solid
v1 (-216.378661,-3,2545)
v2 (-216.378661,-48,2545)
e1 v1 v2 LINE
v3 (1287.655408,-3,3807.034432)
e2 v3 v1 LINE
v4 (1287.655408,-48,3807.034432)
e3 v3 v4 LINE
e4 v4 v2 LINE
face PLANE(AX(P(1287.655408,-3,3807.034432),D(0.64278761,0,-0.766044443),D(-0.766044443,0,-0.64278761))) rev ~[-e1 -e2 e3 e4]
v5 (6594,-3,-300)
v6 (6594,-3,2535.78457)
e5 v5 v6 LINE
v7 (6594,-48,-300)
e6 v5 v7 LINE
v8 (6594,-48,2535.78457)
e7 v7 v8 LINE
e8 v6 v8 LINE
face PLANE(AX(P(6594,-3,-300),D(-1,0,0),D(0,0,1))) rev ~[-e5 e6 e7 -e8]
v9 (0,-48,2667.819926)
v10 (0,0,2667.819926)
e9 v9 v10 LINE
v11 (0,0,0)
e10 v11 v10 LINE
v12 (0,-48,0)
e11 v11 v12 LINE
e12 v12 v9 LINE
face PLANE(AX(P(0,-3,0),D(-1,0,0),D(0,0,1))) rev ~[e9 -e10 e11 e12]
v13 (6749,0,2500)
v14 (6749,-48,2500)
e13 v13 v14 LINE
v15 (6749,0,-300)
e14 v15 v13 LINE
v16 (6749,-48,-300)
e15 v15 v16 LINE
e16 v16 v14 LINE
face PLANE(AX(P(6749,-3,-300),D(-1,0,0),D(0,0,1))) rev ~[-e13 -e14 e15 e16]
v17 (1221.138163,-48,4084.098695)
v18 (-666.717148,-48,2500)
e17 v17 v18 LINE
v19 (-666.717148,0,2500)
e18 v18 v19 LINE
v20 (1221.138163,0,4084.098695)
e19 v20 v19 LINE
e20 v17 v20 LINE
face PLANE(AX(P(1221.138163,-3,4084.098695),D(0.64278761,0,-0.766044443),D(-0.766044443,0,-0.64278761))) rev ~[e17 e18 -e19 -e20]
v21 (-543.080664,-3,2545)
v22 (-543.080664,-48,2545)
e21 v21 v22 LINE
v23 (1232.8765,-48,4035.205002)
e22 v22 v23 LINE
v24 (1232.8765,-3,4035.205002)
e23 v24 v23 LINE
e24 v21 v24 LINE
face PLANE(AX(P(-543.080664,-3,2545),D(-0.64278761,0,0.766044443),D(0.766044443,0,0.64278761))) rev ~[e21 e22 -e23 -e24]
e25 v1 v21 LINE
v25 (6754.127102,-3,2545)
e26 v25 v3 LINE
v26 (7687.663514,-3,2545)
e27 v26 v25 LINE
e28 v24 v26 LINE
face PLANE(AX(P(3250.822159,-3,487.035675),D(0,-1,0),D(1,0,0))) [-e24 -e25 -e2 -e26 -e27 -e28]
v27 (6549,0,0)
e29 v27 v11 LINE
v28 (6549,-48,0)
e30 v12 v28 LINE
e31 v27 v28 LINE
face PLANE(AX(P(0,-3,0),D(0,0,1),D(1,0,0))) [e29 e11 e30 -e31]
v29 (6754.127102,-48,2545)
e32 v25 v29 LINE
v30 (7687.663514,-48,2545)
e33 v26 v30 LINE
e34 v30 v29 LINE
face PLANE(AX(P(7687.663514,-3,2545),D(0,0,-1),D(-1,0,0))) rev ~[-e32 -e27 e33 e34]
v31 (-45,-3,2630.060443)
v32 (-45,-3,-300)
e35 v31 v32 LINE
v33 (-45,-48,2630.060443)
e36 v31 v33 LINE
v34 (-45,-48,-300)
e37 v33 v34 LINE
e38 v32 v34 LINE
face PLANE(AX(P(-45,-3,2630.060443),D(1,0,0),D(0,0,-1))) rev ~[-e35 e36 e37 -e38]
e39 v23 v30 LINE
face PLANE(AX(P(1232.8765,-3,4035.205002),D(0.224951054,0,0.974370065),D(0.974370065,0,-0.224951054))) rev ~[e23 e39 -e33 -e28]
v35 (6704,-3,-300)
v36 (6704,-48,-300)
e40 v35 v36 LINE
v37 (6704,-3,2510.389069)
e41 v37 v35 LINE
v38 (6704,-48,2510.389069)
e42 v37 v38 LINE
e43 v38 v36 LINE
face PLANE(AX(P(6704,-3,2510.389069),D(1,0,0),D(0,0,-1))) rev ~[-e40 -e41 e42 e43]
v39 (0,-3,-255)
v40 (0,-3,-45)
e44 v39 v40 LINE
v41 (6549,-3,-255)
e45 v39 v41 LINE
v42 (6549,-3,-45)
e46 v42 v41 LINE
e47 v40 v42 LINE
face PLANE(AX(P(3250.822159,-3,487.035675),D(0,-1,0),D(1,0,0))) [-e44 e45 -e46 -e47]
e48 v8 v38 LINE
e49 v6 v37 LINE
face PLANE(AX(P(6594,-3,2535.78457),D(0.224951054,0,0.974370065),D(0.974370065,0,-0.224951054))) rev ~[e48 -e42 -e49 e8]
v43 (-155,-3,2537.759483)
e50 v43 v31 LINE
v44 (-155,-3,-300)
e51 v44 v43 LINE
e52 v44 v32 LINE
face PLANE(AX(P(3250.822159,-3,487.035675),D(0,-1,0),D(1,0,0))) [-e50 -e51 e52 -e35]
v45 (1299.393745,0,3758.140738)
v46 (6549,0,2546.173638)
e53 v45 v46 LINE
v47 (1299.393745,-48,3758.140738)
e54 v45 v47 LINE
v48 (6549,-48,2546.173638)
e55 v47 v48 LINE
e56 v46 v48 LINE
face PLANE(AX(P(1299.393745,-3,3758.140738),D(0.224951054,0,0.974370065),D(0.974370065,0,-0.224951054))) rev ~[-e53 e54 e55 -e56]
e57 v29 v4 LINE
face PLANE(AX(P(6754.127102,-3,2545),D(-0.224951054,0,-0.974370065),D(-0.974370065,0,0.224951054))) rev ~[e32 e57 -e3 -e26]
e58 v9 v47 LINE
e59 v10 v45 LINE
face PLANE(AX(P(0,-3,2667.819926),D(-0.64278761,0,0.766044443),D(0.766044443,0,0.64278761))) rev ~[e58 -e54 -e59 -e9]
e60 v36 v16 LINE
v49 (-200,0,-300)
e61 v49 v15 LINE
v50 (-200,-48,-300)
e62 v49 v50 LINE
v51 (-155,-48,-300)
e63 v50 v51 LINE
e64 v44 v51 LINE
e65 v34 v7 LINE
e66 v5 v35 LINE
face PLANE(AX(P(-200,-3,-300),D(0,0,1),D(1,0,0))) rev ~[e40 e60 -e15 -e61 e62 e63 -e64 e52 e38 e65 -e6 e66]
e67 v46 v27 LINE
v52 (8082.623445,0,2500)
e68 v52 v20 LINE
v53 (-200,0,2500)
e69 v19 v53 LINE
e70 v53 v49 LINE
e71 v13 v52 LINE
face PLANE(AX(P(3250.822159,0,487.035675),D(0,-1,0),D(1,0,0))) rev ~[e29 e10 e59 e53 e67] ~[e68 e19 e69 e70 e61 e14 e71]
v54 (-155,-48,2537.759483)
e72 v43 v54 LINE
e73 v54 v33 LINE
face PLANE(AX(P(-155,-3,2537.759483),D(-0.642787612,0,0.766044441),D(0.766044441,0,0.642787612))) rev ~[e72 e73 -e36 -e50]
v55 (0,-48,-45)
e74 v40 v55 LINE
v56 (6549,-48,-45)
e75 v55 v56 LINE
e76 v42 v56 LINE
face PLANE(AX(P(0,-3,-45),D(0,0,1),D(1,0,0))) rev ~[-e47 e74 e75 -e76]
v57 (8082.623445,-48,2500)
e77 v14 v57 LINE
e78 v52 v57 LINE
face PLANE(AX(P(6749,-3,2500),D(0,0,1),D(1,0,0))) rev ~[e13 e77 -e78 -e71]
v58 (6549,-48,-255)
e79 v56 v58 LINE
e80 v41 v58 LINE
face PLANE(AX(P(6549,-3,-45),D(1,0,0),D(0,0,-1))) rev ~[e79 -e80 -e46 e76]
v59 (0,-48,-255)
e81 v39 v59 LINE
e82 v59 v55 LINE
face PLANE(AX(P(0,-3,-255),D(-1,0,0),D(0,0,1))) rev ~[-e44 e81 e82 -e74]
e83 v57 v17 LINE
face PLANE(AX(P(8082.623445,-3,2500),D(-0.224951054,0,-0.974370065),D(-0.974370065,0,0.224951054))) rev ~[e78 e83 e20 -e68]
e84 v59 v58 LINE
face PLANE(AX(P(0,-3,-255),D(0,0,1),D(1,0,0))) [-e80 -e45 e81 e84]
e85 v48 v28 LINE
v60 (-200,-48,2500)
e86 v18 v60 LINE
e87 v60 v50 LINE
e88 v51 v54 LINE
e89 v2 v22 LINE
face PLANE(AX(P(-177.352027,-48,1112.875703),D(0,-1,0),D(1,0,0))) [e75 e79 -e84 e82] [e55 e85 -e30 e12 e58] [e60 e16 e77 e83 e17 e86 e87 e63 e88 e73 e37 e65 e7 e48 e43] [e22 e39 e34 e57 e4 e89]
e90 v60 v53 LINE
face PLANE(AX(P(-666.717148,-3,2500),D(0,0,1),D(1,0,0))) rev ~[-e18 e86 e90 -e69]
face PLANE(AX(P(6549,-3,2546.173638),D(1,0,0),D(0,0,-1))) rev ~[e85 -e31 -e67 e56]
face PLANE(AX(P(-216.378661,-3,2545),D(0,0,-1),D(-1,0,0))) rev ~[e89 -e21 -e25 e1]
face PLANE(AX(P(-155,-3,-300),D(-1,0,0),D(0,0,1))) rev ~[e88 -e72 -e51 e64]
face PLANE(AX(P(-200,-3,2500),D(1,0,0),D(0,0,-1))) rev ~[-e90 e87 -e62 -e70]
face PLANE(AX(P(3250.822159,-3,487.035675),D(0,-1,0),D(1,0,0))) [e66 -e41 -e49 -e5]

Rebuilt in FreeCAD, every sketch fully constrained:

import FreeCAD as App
import Part
import Sketcher
Q = App.Units.Quantity

doc = App.newDocument("Part")
body = doc.addObject("PartDesign::Body", "Body")

# Sketch on XZ plane
sketch1 = body.newObject("Sketcher::SketchObject", "Sketch")
sketch1.AttachmentSupport = (doc.getObject("XZ_Plane"), [""])
sketch1.MapMode = "FlatFace"
sketch1.addGeometry([
    Part.LineSegment(App.Vector(-200, 2500, 0), App.Vector(-200, -300, 0)),  # 0
    Part.LineSegment(App.Vector(-200, -300, 0), App.Vector(6749, -300, 0)),  # 1
    Part.LineSegment(App.Vector(6749, -300, 0), App.Vector(6749, 2500, 0)),  # 2
    Part.LineSegment(App.Vector(6749, 2500, 0), App.Vector(8083, 2500, 0)),  # 3
    Part.LineSegment(App.Vector(8083, 2500, 0), App.Vector(1221, 4084, 0)),  # 4
    Part.LineSegment(App.Vector(1221, 4084, 0), App.Vector(-667, 2500, 0)),  # 5
    Part.LineSegment(App.Vector(-667, 2500, 0), App.Vector(-200, 2500, 0)),  # 6
    Part.LineSegment(App.Vector(6549, 0, 0), App.Vector(0, 0, 0)),  # 7
    Part.LineSegment(App.Vector(0, 0, 0), App.Vector(0, 2668, 0)),  # 8
    Part.LineSegment(App.Vector(0, 2668, 0), App.Vector(1299, 3758, 0)),  # 9
    Part.LineSegment(App.Vector(1299, 3758, 0), App.Vector(6549, 2546, 0)),  # 10
    Part.LineSegment(App.Vector(6549, 2546, 0), App.Vector(6549, 0, 0)),  # 11
], False)
sketch1.addConstraint([
    Sketcher.Constraint("Coincident", 0, 2, 1, 1),
    Sketcher.Constraint("Coincident", 1, 2, 2, 1),
    Sketcher.Constraint("Coincident", 2, 2, 3, 1),
    Sketcher.Constraint("Coincident", 3, 2, 4, 1),
    Sketcher.Constraint("Coincident", 4, 2, 5, 1),
    Sketcher.Constraint("Coincident", 5, 2, 6, 1),
    Sketcher.Constraint("Coincident", 6, 2, 0, 1),
    Sketcher.Constraint("Coincident", 7, 2, 8, 1),
    Sketcher.Constraint("Coincident", 8, 2, 9, 1),
    Sketcher.Constraint("Coincident", 9, 2, 10, 1),
    Sketcher.Constraint("Coincident", 10, 2, 11, 1),
    Sketcher.Constraint("Coincident", 11, 2, 7, 1),
    Sketcher.Constraint("Vertical", 0),
    Sketcher.Constraint("Horizontal", 1),
    Sketcher.Constraint("Vertical", 2),
    Sketcher.Constraint("Horizontal", 3),
    Sketcher.Constraint("Horizontal", 6),
    Sketcher.Constraint("Horizontal", 7),
    Sketcher.Constraint("Vertical", 8),
    Sketcher.Constraint("Vertical", 11),
    Sketcher.Constraint("Coincident", 7, 2, -1, 1),
    Sketcher.Constraint("Parallel", 5, 9),
    Sketcher.Constraint("Parallel", 4, 10),
    Sketcher.Constraint("Horizontal", 3, 2, 5, 2),
    Sketcher.Constraint("DistanceX", 1, 1, 1, 2, 6949.0),
    Sketcher.Constraint("DistanceX", 7, 2, 7, 1, 6549.0),
    Sketcher.Constraint("DistanceY", 0, 2, 0, 1, 2800.0),
    Sketcher.Constraint("Angle", 4, Q("167 deg")),
    Sketcher.Constraint("Angle", 5, Q("-140 deg")),
    Sketcher.Constraint("DistanceX", 0, 2, -1, 1, 200.0),
    Sketcher.Constraint("DistanceY", 0, 2, -1, 1, 300.0),
    Sketcher.Constraint("DistanceY", 11, 2, 11, 1, 2546.173638),
    Sketcher.Constraint("DistanceY", 10, 2, 9, 2, 1211.9671),
    Sketcher.Constraint("Distance", 4, 7041.97053),
    Sketcher.Constraint("DistanceX", 3, 1, 3, 2, 1333.623445),
])
pad1 = body.newObject("PartDesign::Pad", "Pad")
pad1.Profile = sketch1
pad1.Length = 3

# Sketch on XZ plane
sketch2 = body.newObject("Sketcher::SketchObject", "Sketch001")
sketch2.AttachmentSupport = (doc.getObject("XZ_Plane"), [""])
sketch2.MapMode = "FlatFace"
sketch2.AttachmentOffset = App.Placement(App.Vector(0, 0, 3), App.Rotation())
sketch2.addGeometry([
    Part.LineSegment(App.Vector(-200, 2500, 0), App.Vector(-200, -300, 0)),  # 0
    Part.LineSegment(App.Vector(-200, -300, 0), App.Vector(-155, -300, 0)),  # 1
    Part.LineSegment(App.Vector(-155, -300, 0), App.Vector(-155, 2538, 0)),  # 2
    Part.LineSegment(App.Vector(-155, 2538, 0), App.Vector(-45, 2630, 0)),  # 3
    Part.LineSegment(App.Vector(-45, 2630, 0), App.Vector(-45, -300, 0)),  # 4
    Part.LineSegment(App.Vector(-45, -300, 0), App.Vector(6594, -300, 0)),  # 5
    Part.LineSegment(App.Vector(6594, -300, 0), App.Vector(6594, 2536, 0)),  # 6
    Part.LineSegment(App.Vector(6594, 2536, 0), App.Vector(6704, 2510, 0)),  # 7
    Part.LineSegment(App.Vector(6704, 2510, 0), App.Vector(6704, -300, 0)),  # 8
    Part.LineSegment(App.Vector(6704, -300, 0), App.Vector(6749, -300, 0)),  # 9
    Part.LineSegment(App.Vector(6749, -300, 0), App.Vector(6749, 2500, 0)),  # 10
    Part.LineSegment(App.Vector(6749, 2500, 0), App.Vector(8083, 2500, 0)),  # 11
    Part.LineSegment(App.Vector(8083, 2500, 0), App.Vector(1221, 4084, 0)),  # 12
    Part.LineSegment(App.Vector(1221, 4084, 0), App.Vector(-667, 2500, 0)),  # 13
    Part.LineSegment(App.Vector(-667, 2500, 0), App.Vector(-200, 2500, 0)),  # 14
    Part.LineSegment(App.Vector(1288, 3807, 0), App.Vector(-216, 2545, 0)),  # 15
    Part.LineSegment(App.Vector(-216, 2545, 0), App.Vector(-543, 2545, 0)),  # 16
    Part.LineSegment(App.Vector(-543, 2545, 0), App.Vector(1233, 4035, 0)),  # 17
    Part.LineSegment(App.Vector(1233, 4035, 0), App.Vector(7688, 2545, 0)),  # 18
    Part.LineSegment(App.Vector(7688, 2545, 0), App.Vector(6754, 2545, 0)),  # 19
    Part.LineSegment(App.Vector(6754, 2545, 0), App.Vector(1288, 3807, 0)),  # 20
    Part.LineSegment(App.Vector(0, 2668, 0), App.Vector(1299, 3758, 0)),  # 21
    Part.LineSegment(App.Vector(1299, 3758, 0), App.Vector(6549, 2546, 0)),  # 22
    Part.LineSegment(App.Vector(6549, 2546, 0), App.Vector(6549, 0, 0)),  # 23
    Part.LineSegment(App.Vector(6549, 0, 0), App.Vector(0, 0, 0)),  # 24
    Part.LineSegment(App.Vector(0, 0, 0), App.Vector(0, 2668, 0)),  # 25
    Part.LineSegment(App.Vector(6549, -45, 0), App.Vector(6549, -255, 0)),  # 26
    Part.LineSegment(App.Vector(6549, -255, 0), App.Vector(0, -255, 0)),  # 27
    Part.LineSegment(App.Vector(0, -255, 0), App.Vector(0, -45, 0)),  # 28
    Part.LineSegment(App.Vector(0, -45, 0), App.Vector(6549, -45, 0)),  # 29
], False)
sketch2.addConstraint([
    Sketcher.Constraint("Coincident", 0, 2, 1, 1),
    Sketcher.Constraint("Coincident", 1, 2, 2, 1),
    Sketcher.Constraint("Coincident", 2, 2, 3, 1),
    Sketcher.Constraint("Coincident", 3, 2, 4, 1),
    Sketcher.Constraint("Coincident", 4, 2, 5, 1),
    Sketcher.Constraint("Coincident", 5, 2, 6, 1),
    Sketcher.Constraint("Coincident", 6, 2, 7, 1),
    Sketcher.Constraint("Coincident", 7, 2, 8, 1),
    Sketcher.Constraint("Coincident", 8, 2, 9, 1),
    Sketcher.Constraint("Coincident", 9, 2, 10, 1),
    Sketcher.Constraint("Coincident", 10, 2, 11, 1),
    Sketcher.Constraint("Coincident", 11, 2, 12, 1),
    Sketcher.Constraint("Coincident", 12, 2, 13, 1),
    Sketcher.Constraint("Coincident", 13, 2, 14, 1),
    Sketcher.Constraint("Coincident", 14, 2, 0, 1),
    Sketcher.Constraint("Coincident", 15, 2, 16, 1),
    Sketcher.Constraint("Coincident", 16, 2, 17, 1),
    Sketcher.Constraint("Coincident", 17, 2, 18, 1),
    Sketcher.Constraint("Coincident", 18, 2, 19, 1),
    Sketcher.Constraint("Coincident", 19, 2, 20, 1),
    Sketcher.Constraint("Coincident", 20, 2, 15, 1),
    Sketcher.Constraint("Coincident", 21, 2, 22, 1),
    Sketcher.Constraint("Coincident", 22, 2, 23, 1),
    Sketcher.Constraint("Coincident", 23, 2, 24, 1),
    Sketcher.Constraint("Coincident", 24, 2, 25, 1),
    Sketcher.Constraint("Coincident", 25, 2, 21, 1),
    Sketcher.Constraint("Coincident", 26, 2, 27, 1),
    Sketcher.Constraint("Coincident", 27, 2, 28, 1),
    Sketcher.Constraint("Coincident", 28, 2, 29, 1),
    Sketcher.Constraint("Coincident", 29, 2, 26, 1),
    Sketcher.Constraint("Vertical", 0),
    Sketcher.Constraint("Horizontal", 1),
    Sketcher.Constraint("Vertical", 2),
    Sketcher.Constraint("Vertical", 4),
    Sketcher.Constraint("Horizontal", 5),
    Sketcher.Constraint("Vertical", 6),
    Sketcher.Constraint("Vertical", 8),
    Sketcher.Constraint("Horizontal", 9),
    Sketcher.Constraint("Vertical", 10),
    Sketcher.Constraint("Horizontal", 11),
    Sketcher.Constraint("Horizontal", 14),
    Sketcher.Constraint("Horizontal", 16),
    Sketcher.Constraint("Horizontal", 19),
    Sketcher.Constraint("Vertical", 23),
    Sketcher.Constraint("Horizontal", 24),
    Sketcher.Constraint("Vertical", 25),
    Sketcher.Constraint("Vertical", 26),
    Sketcher.Constraint("Horizontal", 27),
    Sketcher.Constraint("Vertical", 28),
    Sketcher.Constraint("Horizontal", 29),
    Sketcher.Constraint("Coincident", 24, 2, -1, 1),
    Sketcher.Constraint("PointOnObject", 27, 2, -2),
    Sketcher.Constraint("Parallel", 7, 12),
    Sketcher.Constraint("Parallel", 3, 13),
    Sketcher.Constraint("Parallel", 13, 15),
    Sketcher.Constraint("Parallel", 15, 17),
    Sketcher.Constraint("Parallel", 12, 18),
    Sketcher.Constraint("Parallel", 18, 20),
    Sketcher.Constraint("Parallel", 17, 21),
    Sketcher.Constraint("Parallel", 20, 22),
    Sketcher.Constraint("Horizontal", 1, 2, 4, 2),
    Sketcher.Constraint("Horizontal", 5, 2, 8, 2),
    Sketcher.Constraint("Horizontal", 11, 2, 13, 2),
    Sketcher.Constraint("Horizontal", 16, 2, 18, 2),
    Sketcher.Constraint("Vertical", 23, 2, 26, 2),
    Sketcher.Constraint("Equal", 1, 9),
    Sketcher.Constraint("DistanceX", 1, 1, 1, 2, 45.0),
    Sketcher.Constraint("DistanceX", 5, 1, 5, 2, 6639.0),
    Sketcher.Constraint("DistanceX", 24, 2, 24, 1, 6549.0),
    Sketcher.Constraint("DistanceY", 0, 2, 0, 1, 2800.0),
    Sketcher.Constraint("DistanceY", 26, 2, 26, 1, 210.0),
    Sketcher.Constraint("Angle", 3, Q("40 deg")),
    Sketcher.Constraint("Angle", 7, Q("-13 deg")),
    Sketcher.Constraint("DistanceX", 0, 2, -1, 1, 200.0),
    Sketcher.Constraint("DistanceY", 0, 2, -1, 1, 300.0),
    Sketcher.Constraint("DistanceX", 3, 2, -1, 1, 45.0),
    Sketcher.Constraint("DistanceX", -1, 1, 7, 2, 6704.0),
    Sketcher.Constraint("DistanceY", -1, 1, 15, 2, 2545.0),
    Sketcher.Constraint("DistanceY", 26, 2, -1, 1, 255.0),
    Sketcher.Constraint("DistanceX", 19, 2, 19, 1, 933.536412),
    Sketcher.Constraint("DistanceY", 6, 1, 6, 2, 2835.78457),
    Sketcher.Constraint("DistanceY", 23, 2, 23, 1, 2546.173638),
    Sketcher.Constraint("DistanceX", -1, 1, 17, 2, 1232.8765),
    Sketcher.Constraint("Distance", 12, 7041.97053),
    Sketcher.Constraint("DistanceX", 11, 1, 11, 2, 1333.623445),
    Sketcher.Constraint("DistanceX", 16, 2, 16, 1, 326.702003),
    Sketcher.Constraint("DistanceY", 2, 1, 2, 2, 2837.759483),
    Sketcher.Constraint("DistanceY", 25, 1, 25, 2, 2667.819926),
    Sketcher.Constraint("DistanceX", 15, 2, -1, 1, 216.378661),
])
pad2 = body.newObject("PartDesign::Pad", "Pad001")
pad2.Profile = sketch2
pad2.Length = 45

doc.recompute()
